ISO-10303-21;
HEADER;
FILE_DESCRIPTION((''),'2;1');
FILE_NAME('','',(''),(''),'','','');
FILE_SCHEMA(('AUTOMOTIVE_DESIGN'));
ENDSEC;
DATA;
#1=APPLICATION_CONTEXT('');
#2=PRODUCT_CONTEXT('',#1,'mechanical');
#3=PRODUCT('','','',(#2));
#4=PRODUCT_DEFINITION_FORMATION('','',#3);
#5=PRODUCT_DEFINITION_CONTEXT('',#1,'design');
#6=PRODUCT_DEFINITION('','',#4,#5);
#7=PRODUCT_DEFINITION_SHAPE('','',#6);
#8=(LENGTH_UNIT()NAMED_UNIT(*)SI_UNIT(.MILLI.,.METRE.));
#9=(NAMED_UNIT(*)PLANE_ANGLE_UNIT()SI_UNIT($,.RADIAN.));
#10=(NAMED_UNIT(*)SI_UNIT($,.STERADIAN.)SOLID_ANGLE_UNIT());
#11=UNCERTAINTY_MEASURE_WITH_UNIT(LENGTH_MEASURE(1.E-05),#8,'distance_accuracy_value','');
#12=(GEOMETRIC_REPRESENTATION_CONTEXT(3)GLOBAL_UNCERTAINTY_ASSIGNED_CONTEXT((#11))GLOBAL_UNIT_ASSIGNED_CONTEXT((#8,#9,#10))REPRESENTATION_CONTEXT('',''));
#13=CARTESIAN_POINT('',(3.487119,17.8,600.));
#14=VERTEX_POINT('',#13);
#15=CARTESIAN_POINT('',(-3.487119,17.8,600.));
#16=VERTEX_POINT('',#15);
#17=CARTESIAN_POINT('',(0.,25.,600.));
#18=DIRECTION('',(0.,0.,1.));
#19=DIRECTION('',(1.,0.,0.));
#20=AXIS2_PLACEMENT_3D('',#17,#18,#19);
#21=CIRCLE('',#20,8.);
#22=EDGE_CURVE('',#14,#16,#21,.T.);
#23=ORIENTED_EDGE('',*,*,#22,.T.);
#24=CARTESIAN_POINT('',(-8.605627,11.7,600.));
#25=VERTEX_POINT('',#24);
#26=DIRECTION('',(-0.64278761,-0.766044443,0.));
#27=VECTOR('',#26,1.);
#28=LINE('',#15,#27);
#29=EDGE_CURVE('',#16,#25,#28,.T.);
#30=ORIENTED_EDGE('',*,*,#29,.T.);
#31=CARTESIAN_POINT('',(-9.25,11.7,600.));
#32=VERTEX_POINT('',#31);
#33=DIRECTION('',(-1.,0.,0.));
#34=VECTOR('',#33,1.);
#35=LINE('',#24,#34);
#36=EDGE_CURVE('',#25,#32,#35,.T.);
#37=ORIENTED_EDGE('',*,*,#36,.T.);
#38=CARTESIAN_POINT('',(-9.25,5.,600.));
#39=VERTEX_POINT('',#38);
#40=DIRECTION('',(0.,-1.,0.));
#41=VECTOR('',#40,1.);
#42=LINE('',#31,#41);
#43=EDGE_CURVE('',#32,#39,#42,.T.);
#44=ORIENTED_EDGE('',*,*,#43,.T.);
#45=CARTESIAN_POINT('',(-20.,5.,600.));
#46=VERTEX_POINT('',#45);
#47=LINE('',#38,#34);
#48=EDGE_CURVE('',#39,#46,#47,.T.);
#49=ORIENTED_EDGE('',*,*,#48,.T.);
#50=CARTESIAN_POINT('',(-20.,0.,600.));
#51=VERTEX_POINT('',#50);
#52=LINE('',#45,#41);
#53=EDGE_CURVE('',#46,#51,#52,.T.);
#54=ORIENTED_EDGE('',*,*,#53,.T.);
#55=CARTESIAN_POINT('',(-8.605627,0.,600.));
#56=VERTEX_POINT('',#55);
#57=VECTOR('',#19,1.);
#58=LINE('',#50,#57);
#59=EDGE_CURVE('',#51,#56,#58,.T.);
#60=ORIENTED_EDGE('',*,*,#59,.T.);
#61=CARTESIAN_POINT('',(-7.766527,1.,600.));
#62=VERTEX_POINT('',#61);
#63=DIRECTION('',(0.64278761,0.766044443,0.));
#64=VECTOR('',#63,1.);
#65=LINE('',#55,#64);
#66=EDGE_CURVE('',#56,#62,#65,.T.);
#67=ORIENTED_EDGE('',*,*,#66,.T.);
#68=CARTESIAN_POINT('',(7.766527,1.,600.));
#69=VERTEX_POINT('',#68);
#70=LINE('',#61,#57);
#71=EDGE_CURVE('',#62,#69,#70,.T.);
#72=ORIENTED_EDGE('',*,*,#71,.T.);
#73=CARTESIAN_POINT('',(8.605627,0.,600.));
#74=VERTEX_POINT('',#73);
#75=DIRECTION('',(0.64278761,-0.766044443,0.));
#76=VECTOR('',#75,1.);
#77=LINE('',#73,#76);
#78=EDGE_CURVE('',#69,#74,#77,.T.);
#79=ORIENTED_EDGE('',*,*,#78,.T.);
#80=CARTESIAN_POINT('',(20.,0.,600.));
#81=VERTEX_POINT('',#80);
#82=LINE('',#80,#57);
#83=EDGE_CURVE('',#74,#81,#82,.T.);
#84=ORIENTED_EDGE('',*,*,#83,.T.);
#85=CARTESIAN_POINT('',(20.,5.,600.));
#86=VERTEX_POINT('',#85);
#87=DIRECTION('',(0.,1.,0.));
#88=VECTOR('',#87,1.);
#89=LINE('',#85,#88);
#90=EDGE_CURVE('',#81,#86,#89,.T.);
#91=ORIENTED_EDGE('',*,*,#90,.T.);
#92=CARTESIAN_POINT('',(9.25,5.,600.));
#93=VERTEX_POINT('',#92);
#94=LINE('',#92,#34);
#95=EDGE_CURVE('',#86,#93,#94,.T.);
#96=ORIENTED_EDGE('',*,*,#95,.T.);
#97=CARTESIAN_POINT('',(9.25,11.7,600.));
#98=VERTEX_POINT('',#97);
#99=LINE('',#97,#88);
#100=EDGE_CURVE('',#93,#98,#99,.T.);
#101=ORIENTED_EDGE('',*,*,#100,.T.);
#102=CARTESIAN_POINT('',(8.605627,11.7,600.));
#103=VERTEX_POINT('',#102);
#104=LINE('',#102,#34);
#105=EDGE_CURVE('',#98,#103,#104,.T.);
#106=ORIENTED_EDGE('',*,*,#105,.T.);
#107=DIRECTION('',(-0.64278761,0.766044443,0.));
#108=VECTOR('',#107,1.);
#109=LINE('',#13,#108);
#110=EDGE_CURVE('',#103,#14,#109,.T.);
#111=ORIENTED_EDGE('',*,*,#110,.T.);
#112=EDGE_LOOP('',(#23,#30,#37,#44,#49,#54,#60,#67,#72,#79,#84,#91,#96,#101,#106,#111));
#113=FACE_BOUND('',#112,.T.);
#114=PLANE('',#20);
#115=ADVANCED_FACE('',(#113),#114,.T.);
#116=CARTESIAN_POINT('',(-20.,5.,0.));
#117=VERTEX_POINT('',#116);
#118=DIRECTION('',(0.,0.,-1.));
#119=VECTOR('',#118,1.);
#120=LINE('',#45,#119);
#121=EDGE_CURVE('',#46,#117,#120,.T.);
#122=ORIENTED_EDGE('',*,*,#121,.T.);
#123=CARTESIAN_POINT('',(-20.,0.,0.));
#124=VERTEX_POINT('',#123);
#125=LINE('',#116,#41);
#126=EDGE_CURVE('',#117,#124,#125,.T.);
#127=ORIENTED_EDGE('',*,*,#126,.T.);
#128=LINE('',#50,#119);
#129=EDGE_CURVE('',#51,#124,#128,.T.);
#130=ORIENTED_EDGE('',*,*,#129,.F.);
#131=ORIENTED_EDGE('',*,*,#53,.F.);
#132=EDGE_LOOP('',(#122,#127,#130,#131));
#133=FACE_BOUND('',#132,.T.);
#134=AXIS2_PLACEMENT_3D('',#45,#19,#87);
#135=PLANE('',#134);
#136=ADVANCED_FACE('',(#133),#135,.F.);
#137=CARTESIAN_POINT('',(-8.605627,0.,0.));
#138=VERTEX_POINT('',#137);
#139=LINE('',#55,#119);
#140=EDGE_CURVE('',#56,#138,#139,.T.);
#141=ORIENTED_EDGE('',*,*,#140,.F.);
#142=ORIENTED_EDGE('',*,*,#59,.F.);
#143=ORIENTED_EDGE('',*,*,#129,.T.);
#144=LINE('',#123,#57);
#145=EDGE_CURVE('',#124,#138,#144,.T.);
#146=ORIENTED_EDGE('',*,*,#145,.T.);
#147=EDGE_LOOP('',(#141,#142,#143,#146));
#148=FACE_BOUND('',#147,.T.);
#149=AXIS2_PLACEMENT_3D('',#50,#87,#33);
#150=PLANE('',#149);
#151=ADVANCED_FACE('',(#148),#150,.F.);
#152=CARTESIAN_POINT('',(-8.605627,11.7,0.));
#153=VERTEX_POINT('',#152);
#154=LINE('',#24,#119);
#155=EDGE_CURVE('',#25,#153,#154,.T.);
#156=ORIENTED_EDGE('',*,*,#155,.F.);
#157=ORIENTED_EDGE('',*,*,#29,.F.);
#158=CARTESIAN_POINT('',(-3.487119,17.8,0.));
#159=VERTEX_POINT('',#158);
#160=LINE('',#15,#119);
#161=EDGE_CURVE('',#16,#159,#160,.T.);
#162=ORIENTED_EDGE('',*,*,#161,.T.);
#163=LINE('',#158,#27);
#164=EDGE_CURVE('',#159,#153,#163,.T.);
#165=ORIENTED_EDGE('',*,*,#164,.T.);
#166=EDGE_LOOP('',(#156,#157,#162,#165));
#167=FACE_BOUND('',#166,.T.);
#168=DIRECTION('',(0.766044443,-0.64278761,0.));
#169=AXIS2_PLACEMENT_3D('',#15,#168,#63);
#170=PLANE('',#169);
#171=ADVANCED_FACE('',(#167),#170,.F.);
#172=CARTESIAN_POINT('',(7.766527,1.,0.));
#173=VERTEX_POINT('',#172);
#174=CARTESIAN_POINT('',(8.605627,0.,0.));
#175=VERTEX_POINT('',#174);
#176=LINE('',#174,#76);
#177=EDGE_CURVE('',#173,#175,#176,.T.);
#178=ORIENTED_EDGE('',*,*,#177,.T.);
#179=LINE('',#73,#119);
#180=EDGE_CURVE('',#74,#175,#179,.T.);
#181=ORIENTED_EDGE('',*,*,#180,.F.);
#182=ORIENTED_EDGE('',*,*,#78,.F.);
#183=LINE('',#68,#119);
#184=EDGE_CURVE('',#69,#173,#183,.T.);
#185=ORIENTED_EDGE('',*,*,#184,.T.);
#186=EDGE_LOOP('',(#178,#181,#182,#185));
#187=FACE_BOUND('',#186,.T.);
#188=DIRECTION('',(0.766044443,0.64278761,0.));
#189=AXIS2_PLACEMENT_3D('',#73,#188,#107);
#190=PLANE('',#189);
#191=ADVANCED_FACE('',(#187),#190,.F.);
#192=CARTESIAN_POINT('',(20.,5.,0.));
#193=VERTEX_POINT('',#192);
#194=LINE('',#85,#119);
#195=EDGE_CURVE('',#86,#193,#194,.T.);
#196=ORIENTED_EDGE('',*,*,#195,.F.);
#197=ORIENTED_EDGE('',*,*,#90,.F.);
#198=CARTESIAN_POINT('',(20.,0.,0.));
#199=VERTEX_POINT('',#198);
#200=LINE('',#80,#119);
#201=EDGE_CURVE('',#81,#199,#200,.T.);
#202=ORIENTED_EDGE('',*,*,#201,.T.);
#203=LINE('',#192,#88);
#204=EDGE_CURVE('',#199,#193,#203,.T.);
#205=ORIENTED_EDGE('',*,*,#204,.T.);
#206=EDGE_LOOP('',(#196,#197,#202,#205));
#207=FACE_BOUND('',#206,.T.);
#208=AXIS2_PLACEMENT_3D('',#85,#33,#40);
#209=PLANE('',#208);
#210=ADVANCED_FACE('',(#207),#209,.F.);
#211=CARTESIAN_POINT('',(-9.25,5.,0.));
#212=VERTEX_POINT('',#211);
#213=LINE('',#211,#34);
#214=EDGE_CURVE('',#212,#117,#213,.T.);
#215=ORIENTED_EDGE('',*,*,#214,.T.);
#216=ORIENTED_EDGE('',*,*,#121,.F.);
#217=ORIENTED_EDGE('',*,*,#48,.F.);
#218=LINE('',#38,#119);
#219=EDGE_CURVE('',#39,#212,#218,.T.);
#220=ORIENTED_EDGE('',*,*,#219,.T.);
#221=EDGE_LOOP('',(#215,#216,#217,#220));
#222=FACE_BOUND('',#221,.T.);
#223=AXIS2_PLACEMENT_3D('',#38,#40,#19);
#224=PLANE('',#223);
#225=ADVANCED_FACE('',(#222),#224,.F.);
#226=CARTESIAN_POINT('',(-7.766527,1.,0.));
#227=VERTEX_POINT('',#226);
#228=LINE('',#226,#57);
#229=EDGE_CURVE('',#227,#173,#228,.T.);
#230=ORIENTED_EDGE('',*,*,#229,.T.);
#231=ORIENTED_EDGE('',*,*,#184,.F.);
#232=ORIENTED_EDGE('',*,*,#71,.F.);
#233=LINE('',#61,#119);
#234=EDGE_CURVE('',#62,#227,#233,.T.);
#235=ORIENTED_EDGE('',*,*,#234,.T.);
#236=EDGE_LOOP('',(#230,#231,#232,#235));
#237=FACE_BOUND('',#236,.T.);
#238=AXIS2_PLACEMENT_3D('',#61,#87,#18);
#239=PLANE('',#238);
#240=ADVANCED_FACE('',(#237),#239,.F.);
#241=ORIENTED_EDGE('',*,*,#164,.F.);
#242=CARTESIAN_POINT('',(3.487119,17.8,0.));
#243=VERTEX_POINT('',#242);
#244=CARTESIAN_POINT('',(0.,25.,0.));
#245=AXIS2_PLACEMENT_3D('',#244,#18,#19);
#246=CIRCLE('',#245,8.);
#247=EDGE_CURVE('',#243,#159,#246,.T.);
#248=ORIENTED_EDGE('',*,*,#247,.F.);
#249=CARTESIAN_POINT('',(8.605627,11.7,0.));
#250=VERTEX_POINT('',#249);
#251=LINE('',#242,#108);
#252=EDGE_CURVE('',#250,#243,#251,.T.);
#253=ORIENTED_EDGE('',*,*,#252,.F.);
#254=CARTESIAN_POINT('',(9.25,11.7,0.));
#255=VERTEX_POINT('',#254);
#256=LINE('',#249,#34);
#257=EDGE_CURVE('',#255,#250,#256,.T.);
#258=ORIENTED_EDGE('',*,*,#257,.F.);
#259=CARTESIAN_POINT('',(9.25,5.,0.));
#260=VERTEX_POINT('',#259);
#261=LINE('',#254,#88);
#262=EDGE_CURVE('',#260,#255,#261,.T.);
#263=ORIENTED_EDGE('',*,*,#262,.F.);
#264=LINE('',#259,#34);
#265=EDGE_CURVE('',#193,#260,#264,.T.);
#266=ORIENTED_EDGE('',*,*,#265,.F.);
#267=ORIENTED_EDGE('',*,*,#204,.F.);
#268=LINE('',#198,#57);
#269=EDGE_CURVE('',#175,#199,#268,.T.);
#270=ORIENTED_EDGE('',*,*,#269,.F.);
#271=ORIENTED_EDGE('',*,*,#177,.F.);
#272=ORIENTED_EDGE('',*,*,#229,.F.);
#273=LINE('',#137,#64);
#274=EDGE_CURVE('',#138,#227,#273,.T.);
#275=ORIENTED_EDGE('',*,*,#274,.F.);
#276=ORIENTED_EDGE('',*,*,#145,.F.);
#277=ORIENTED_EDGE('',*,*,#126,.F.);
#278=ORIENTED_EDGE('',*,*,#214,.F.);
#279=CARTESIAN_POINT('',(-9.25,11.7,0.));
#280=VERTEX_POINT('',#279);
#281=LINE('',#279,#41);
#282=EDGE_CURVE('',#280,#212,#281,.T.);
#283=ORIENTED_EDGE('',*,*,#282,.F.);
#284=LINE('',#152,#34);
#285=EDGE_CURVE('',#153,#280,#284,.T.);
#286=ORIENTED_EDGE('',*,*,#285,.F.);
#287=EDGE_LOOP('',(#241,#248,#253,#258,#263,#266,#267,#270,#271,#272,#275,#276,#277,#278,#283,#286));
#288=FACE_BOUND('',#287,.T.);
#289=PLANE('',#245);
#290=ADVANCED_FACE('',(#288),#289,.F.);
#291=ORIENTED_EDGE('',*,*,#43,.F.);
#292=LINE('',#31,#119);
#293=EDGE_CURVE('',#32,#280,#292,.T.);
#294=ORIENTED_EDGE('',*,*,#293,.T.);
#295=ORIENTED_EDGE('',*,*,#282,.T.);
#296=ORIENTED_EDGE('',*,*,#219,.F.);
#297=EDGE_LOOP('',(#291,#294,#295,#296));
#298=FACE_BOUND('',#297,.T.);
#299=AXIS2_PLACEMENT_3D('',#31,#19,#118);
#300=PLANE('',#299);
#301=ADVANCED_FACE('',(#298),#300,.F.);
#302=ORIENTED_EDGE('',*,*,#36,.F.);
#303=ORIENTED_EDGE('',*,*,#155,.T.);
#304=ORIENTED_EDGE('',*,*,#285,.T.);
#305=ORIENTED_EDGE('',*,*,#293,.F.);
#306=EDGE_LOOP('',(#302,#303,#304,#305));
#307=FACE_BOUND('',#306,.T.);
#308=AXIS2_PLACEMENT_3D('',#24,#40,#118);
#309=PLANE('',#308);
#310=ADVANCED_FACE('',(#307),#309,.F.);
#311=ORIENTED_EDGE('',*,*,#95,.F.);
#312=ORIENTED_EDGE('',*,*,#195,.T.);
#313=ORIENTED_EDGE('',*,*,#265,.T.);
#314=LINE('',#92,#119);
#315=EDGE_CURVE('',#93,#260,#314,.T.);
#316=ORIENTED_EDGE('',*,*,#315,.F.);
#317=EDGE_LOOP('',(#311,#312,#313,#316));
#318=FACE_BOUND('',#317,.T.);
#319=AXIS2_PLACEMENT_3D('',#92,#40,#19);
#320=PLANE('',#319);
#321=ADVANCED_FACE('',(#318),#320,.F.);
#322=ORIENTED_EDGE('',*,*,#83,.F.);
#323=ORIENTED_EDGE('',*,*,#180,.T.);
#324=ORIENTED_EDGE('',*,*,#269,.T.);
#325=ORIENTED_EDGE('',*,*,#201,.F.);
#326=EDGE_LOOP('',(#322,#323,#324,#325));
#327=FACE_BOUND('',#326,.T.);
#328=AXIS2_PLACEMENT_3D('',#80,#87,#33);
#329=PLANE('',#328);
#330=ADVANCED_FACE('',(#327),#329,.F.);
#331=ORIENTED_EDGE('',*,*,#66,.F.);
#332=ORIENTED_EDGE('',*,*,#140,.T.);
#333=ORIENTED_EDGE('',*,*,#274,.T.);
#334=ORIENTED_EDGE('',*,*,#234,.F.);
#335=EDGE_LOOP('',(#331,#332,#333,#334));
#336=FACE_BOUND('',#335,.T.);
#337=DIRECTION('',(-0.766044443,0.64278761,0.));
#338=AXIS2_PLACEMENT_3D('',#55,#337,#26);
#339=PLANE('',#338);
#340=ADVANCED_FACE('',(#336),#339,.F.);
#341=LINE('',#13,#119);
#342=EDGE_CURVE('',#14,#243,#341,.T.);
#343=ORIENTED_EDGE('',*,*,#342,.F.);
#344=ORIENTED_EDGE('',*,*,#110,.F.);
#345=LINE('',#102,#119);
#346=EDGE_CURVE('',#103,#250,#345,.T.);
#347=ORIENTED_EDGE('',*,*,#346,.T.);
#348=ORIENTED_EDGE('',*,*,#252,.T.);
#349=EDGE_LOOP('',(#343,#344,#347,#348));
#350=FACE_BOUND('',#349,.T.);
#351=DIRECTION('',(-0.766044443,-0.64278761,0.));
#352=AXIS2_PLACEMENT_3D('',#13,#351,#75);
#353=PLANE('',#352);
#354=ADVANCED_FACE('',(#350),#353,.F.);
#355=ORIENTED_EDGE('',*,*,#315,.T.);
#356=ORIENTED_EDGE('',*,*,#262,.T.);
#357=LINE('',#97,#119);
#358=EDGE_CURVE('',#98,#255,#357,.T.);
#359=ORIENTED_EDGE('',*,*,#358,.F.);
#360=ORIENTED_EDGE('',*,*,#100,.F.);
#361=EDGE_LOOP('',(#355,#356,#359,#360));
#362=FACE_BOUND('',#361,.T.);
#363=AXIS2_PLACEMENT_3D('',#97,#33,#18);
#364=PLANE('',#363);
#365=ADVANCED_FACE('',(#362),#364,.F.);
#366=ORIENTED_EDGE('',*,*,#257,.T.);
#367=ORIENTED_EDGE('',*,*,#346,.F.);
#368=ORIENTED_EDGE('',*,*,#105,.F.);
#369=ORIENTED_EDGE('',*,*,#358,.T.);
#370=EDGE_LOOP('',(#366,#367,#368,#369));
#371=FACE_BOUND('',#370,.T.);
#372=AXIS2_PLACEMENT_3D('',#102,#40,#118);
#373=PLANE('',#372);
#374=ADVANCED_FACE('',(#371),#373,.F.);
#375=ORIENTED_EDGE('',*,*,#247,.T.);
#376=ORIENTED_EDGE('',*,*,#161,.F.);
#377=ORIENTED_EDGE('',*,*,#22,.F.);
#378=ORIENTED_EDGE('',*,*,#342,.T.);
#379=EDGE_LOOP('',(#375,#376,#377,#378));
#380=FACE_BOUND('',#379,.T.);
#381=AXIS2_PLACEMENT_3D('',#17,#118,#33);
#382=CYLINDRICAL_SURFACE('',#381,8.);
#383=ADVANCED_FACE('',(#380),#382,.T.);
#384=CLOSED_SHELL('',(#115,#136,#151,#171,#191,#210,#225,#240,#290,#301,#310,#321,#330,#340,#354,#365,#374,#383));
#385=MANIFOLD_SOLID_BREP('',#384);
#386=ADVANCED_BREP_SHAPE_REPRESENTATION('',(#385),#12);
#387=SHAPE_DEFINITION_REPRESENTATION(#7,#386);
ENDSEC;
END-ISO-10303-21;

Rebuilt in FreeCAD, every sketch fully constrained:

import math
import FreeCAD as App
import Part
import Sketcher

V = App.Vector
Q = App.Units.Quantity

doc = App.newDocument("Part")
body = doc.addObject("PartDesign::Body", "Body")

# Sketch on XY plane
sketch1 = body.newObject("Sketcher::SketchObject", "Sketch")
sketch1.AttachmentSupport = (doc.getObject("XY_Plane"), [""])
sketch1.MapMode = "FlatFace"
sketch1.addGeometry([
    Part.LineSegment(V(-3.5, 17.8, 0), V(-8.6, 11.7, 0)),  # 0
    Part.LineSegment(V(-8.6, 11.7, 0), V(-9.2, 11.7, 0)),  # 1
    Part.LineSegment(V(-9.2, 11.7, 0), V(-9.2, 5, 0)),  # 2
    Part.LineSegment(V(-9.2, 5, 0), V(-20, 5, 0)),  # 3
    Part.LineSegment(V(-20, 5, 0), V(-20, 0, 0)),  # 4
    Part.LineSegment(V(-20, 0, 0), V(-8.6, 0, 0)),  # 5
    Part.LineSegment(V(-8.6, 0, 0), V(-7.8, 1, 0)),  # 6
    Part.LineSegment(V(-7.8, 1, 0), V(7.8, 1, 0)),  # 7
    Part.LineSegment(V(7.8, 1, 0), V(8.6, 0, 0)),  # 8
    Part.LineSegment(V(8.6, 0, 0), V(20, 0, 0)),  # 9
    Part.LineSegment(V(20, 0, 0), V(20, 5, 0)),  # 10
    Part.LineSegment(V(20, 5, 0), V(9.2, 5, 0)),  # 11
    Part.LineSegment(V(9.2, 5, 0), V(9.2, 11.7, 0)),  # 12
    Part.LineSegment(V(9.2, 11.7, 0), V(8.6, 11.7, 0)),  # 13
    Part.LineSegment(V(8.6, 11.7, 0), V(3.5, 17.8, 0)),  # 14
    Part.ArcOfCircle(Part.Circle(V(0, 25, 0), V(0, 0, 1), 8), math.radians(-64), math.radians(244)),  # 15
], False)
sketch1.addConstraint([
    Sketcher.Constraint("Coincident", 0, 2, 1, 1),
    Sketcher.Constraint("Coincident", 1, 2, 2, 1),
    Sketcher.Constraint("Coincident", 2, 2, 3, 1),
    Sketcher.Constraint("Coincident", 3, 2, 4, 1),
    Sketcher.Constraint("Coincident", 4, 2, 5, 1),
    Sketcher.Constraint("Coincident", 5, 2, 6, 1),
    Sketcher.Constraint("Coincident", 6, 2, 7, 1),
    Sketcher.Constraint("Coincident", 7, 2, 8, 1),
    Sketcher.Constraint("Coincident", 8, 2, 9, 1),
    Sketcher.Constraint("Coincident", 9, 2, 10, 1),
    Sketcher.Constraint("Coincident", 10, 2, 11, 1),
    Sketcher.Constraint("Coincident", 11, 2, 12, 1),
    Sketcher.Constraint("Coincident", 12, 2, 13, 1),
    Sketcher.Constraint("Coincident", 13, 2, 14, 1),
    Sketcher.Constraint("Coincident", 14, 2, 15, 1),
    Sketcher.Constraint("Coincident", 15, 2, 0, 1),
    Sketcher.Constraint("Horizontal", 1),
    Sketcher.Constraint("Vertical", 2),
    Sketcher.Constraint("Horizontal", 3),
    Sketcher.Constraint("Vertical", 4),
    Sketcher.Constraint("Horizontal", 5),
    Sketcher.Constraint("Horizontal", 7),
    Sketcher.Constraint("Horizontal", 9),
    Sketcher.Constraint("Vertical", 10),
    Sketcher.Constraint("Horizontal", 11),
    Sketcher.Constraint("Vertical", 12),
    Sketcher.Constraint("Horizontal", 13),
    Sketcher.Constraint("Symmetric", 5, 2, 8, 2, -1, 1),
    Sketcher.Constraint("Symmetric", 4, 2, 9, 2, -2),
    Sketcher.Constraint("Symmetric", 2, 2, 11, 2, -2),
    Sketcher.Constraint("Symmetric", 0, 2, 13, 2, -2),
    Sketcher.Constraint("Symmetric", 14, 2, 15, 2, -2),
    Sketcher.Constraint("Parallel", 0, 6),
    Sketcher.Constraint("Parallel", 8, 14),
    Sketcher.Constraint("Vertical", 0, 2, 5, 2),
    Sketcher.Constraint("Radius", 15, Q("8 mm")),
    Sketcher.Constraint("DistanceY", 4, 2, 4, 1, Q("5 mm")),
    Sketcher.Constraint("Angle", 0, Q("-130 deg")),
    Sketcher.Constraint("DistanceY", 2, 2, 2, 1, Q("6.7 mm")),
    Sketcher.Constraint("DistanceY", -1, 1, 15, 3, Q("25 mm")),
    Sketcher.Constraint("DistanceX", 3, 2, -1, 1, Q("20 mm")),
    Sketcher.Constraint("DistanceY", -1, 1, 6, 2, Q("1 mm")),
    Sketcher.Constraint("DistanceX", 3, 2, 3, 1, Q("10.75 mm")),
    Sketcher.Constraint("DistanceY", -1, 1, 14, 2, Q("17.8 mm")),
])
pad1 = body.newObject("PartDesign::Pad", "Pad")
pad1.Profile = sketch1
pad1.Length = 600

doc.recompute()
